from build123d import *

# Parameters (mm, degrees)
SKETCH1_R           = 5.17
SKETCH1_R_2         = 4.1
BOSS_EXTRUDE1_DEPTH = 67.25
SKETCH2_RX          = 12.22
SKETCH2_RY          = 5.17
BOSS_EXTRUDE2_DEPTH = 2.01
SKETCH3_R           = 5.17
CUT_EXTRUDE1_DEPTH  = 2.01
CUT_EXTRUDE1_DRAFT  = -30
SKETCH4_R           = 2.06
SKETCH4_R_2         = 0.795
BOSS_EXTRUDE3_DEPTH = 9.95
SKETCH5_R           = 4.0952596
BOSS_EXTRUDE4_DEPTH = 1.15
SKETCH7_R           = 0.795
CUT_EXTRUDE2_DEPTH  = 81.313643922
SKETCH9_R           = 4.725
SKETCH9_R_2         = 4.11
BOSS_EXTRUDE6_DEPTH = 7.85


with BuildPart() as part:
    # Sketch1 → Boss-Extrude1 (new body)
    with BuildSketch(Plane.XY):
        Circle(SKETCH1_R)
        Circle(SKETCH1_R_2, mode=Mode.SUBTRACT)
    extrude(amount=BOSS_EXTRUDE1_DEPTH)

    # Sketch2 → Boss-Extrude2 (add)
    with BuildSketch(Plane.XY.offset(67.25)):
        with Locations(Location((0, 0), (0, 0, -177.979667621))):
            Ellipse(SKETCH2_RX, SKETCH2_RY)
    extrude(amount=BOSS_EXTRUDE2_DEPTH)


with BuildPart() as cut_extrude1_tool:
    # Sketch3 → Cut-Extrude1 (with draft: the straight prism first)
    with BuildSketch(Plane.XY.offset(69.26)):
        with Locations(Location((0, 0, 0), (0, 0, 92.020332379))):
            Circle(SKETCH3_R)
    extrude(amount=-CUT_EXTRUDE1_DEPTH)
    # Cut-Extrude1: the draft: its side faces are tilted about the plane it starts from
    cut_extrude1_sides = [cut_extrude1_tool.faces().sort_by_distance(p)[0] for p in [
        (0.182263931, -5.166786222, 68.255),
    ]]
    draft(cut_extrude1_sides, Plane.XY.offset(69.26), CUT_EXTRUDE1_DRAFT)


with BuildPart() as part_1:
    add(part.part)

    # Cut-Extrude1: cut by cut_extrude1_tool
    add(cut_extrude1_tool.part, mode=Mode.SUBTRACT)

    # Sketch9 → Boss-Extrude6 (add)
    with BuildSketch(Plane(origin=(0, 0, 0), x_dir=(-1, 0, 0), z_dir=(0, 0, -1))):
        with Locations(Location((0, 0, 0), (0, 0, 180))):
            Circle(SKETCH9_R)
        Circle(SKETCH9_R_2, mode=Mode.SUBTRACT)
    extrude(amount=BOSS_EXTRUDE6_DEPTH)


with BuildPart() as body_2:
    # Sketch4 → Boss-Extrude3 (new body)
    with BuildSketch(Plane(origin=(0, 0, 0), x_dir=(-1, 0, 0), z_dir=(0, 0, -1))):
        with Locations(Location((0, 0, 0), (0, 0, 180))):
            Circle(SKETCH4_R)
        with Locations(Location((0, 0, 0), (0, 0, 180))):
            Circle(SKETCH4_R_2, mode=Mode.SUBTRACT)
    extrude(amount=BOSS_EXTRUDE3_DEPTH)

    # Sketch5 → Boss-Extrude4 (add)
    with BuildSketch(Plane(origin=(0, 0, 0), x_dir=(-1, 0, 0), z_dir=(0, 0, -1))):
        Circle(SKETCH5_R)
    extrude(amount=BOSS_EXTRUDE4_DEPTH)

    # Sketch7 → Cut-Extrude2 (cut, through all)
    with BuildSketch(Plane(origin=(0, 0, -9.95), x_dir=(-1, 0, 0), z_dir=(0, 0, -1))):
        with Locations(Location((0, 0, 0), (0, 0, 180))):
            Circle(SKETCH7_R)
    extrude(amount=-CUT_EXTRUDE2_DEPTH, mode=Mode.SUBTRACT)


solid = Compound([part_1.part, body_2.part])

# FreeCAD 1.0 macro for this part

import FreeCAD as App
import Part
import Sketcher
from FreeCAD import Vector
Q = App.Units.Quantity


def faces_at(feature, points):
    """Names of the faces that lie closest to the given points."""
    faces = feature.Shape.Faces
    near = lambda p: min(range(len(faces)), key=lambda i: faces[i].distToShape(Part.Vertex(*p))[0])
    return sorted({f"Face{near(p) + 1}" for p in points})

doc = App.newDocument("Part")
body = doc.addObject("PartDesign::Body", "Body")

# Sketch on XY plane
sketch1 = body.newObject("Sketcher::SketchObject", "Sketch")
sketch1.AttachmentSupport = (doc.getObject("XY_Plane"), [""])
sketch1.MapMode = "FlatFace"
sketch1.addGeometry([
    Part.Circle(Vector(0, 0, 0), Vector(0, 0, 1), 5.17),
    Part.Circle(Vector(0, 0, 0), Vector(0, 0, 1), 4.1),
], False)
sketch1.addConstraint([
    Sketcher.Constraint("Coincident", 0, 3, -1, 1),
    Sketcher.Constraint("Coincident", 1, 3, -1, 1),
    Sketcher.Constraint("Diameter", 1, Q("8.2 mm")),
    Sketcher.Constraint("Diameter", 0, Q("10.34 mm")),
])
pad1 = body.newObject("PartDesign::Pad", "Pad")
pad1.Profile = sketch1
pad1.Length = 67.25

# Sketch on XY plane
sketch2 = body.newObject("Sketcher::SketchObject", "Sketch001")
sketch2.AttachmentSupport = (doc.getObject("XY_Plane"), [""])
sketch2.MapMode = "FlatFace"
sketch2.AttachmentOffset = App.Placement(Vector(0, 0, 67.25), App.Rotation())
sketch2.addGeometry(Part.Ellipse(Vector(-12.212404, -0.430806, 0), Vector(0.182264, -5.166786, 0), Vector(0, 0, 0)), False)
sketch2.addConstraint(Sketcher.Constraint("Block", 0))
pad2 = body.newObject("PartDesign::Pad", "Pad001")
pad2.Profile = sketch2
pad2.Length = 2.01
body2 = doc.addObject("PartDesign::Body", "Body001")

# Sketch on XY plane
sketch3 = body2.newObject("Sketcher::SketchObject", "Sketch002")
sketch3.AttachmentSupport = (doc.getObject("XY_Plane001"), [""])
sketch3.MapMode = "FlatFace"
sketch3.AttachmentOffset = App.Placement(Vector(0, 0, 69.26), App.Rotation())
sketch3.addGeometry(Part.Circle(Vector(0, 0, 0), Vector(0, 0, 1), 5.17), False)
sketch3.addConstraint([
    Sketcher.Constraint("Coincident", 0, 3, -1, 1),
    Sketcher.Constraint("Diameter", 0, Q("10.34 mm")),
])
pad3 = body2.newObject("PartDesign::Pad", "Pad002")
pad3.Profile = sketch3
pad3.Length = 2.01
pad3.Reversed = True
doc.recompute()

datumplane = body2.newObject("PartDesign::Plane", "DatumPlane")
datumplane.AttachmentSupport = (doc.getObject("XY_Plane001"), [""])
datumplane.MapMode = "FlatFace"
datumplane.AttachmentOffset = App.Placement(Vector(0, 0, 69.26), App.Rotation())
draft = body2.newObject("PartDesign::Draft", "Draft")
draft.Base = (pad3, faces_at(pad3, [(0.182, -5.167, 68.255)]))
draft.NeutralPlane = (datumplane, [""])
draft.Angle = 30
draft.Reversed = True
doc.recompute()

boolean = body.newObject("PartDesign::Boolean", "Boolean")
boolean.Type = "Cut"
boolean.addObjects([body2])

# Sketch on XY plane
sketch4 = body.newObject("Sketcher::SketchObject", "Sketch003")
sketch4.AttachmentSupport = (doc.getObject("XY_Plane"), [""])
sketch4.MapMode = "FlatFace"
sketch4.addGeometry([
    Part.Circle(Vector(0, 0, 0), Vector(0, 0, 1), 4.725),
    Part.Circle(Vector(0, 0, 0), Vector(0, 0, 1), 4.11),
], False)
sketch4.addConstraint([
    Sketcher.Constraint("Coincident", 0, 3, -1, 1),
    Sketcher.Constraint("Coincident", 1, 3, -1, 1),
    Sketcher.Constraint("Diameter", 0, Q("9.45 mm")),
    Sketcher.Constraint("Diameter", 1, Q("8.22 mm")),
])
pad4 = body.newObject("PartDesign::Pad", "Pad003")
pad4.Profile = sketch4
pad4.Length = 7.85
pad4.Reversed = True
body3 = doc.addObject("PartDesign::Body", "Body002")

# Sketch on XY plane
sketch5 = body3.newObject("Sketcher::SketchObject", "Sketch004")
sketch5.AttachmentSupport = (doc.getObject("XY_Plane002"), [""])
sketch5.MapMode = "FlatFace"
sketch5.addGeometry([
    Part.Circle(Vector(0, 0, 0), Vector(0, 0, 1), 2.06),
    Part.Circle(Vector(0, 0, 0), Vector(0, 0, 1), 0.795),
], False)
sketch5.addConstraint([
    Sketcher.Constraint("Coincident", 0, 3, -1, 1),
    Sketcher.Constraint("Coincident", 1, 3, -1, 1),
    Sketcher.Constraint("Diameter", 0, Q("4.12 mm")),
    Sketcher.Constraint("Diameter", 1, Q("1.59 mm")),
])
pad5 = body3.newObject("PartDesign::Pad", "Pad004")
pad5.Profile = sketch5
pad5.Length = 9.95
pad5.Reversed = True

# Sketch on XY plane
sketch6 = body3.newObject("Sketcher::SketchObject", "Sketch005")
sketch6.AttachmentSupport = (doc.getObject("XY_Plane002"), [""])
sketch6.MapMode = "FlatFace"
sketch6.addGeometry(Part.Circle(Vector(0, 0, 0), Vector(0, 0, 1), 4.09526), False)
sketch6.addConstraint([
    Sketcher.Constraint("Coincident", 0, 3, -1, 1),
    Sketcher.Constraint("Diameter", 0, Q("8.190519 mm")),
])
pad6 = body3.newObject("PartDesign::Pad", "Pad005")
pad6.Profile = sketch6
pad6.Length = 1.15
pad6.Reversed = True

# Sketch on XY plane
sketch7 = body3.newObject("Sketcher::SketchObject", "Sketch006")
sketch7.AttachmentSupport = (doc.getObject("XY_Plane002"), [""])
sketch7.MapMode = "FlatFace"
sketch7.AttachmentOffset = App.Placement(Vector(0, 0, -9.95), App.Rotation())
sketch7.addGeometry(Part.Circle(Vector(0, 0, 0), Vector(0, 0, 1), 0.795), False)
sketch7.addConstraint([
    Sketcher.Constraint("Coincident", 0, 3, -1, 1),
    Sketcher.Constraint("Diameter", 0, Q("1.59 mm")),
])
pocket1 = body3.newObject("PartDesign::Pocket", "Pocket")
pocket1.Profile = sketch7
pocket1.Type = "ThroughAll"
pocket1.Reversed = True

doc.recompute()
